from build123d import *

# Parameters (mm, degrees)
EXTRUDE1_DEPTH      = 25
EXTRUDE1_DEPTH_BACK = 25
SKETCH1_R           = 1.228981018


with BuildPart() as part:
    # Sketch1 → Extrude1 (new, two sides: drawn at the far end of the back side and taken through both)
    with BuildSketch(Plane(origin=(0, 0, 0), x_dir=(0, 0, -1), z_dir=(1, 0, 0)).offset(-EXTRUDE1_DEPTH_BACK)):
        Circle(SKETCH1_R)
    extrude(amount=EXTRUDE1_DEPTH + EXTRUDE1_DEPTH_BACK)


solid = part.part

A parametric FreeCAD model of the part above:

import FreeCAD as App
import Part
import Sketcher

V = App.Vector

doc = App.newDocument("Part")
body = doc.addObject("PartDesign::Body", "Body")

# Sketch on YZ plane
sketch1 = body.newObject("Sketcher::SketchObject", "Sketch")
sketch1.AttachmentSupport = (doc.getObject("YZ_Plane"), [""])
sketch1.MapMode = "FlatFace"
sketch1.addGeometry(Part.Circle(V(0, 0, 0), V(0, 0, 1), 1.228981), False)
sketch1.addConstraint(Sketcher.Constraint("Coincident", 0, 3, -1, 1))
sketch1.addConstraint(Sketcher.Constraint("Diameter", 0, 2.457962))
pad1 = body.newObject("PartDesign::Pad", "Pad")
pad1.Profile = sketch1
pad1.Type = "TwoLengths"
pad1.Length = 25
pad1.Length2 = 25

doc.recompute()
